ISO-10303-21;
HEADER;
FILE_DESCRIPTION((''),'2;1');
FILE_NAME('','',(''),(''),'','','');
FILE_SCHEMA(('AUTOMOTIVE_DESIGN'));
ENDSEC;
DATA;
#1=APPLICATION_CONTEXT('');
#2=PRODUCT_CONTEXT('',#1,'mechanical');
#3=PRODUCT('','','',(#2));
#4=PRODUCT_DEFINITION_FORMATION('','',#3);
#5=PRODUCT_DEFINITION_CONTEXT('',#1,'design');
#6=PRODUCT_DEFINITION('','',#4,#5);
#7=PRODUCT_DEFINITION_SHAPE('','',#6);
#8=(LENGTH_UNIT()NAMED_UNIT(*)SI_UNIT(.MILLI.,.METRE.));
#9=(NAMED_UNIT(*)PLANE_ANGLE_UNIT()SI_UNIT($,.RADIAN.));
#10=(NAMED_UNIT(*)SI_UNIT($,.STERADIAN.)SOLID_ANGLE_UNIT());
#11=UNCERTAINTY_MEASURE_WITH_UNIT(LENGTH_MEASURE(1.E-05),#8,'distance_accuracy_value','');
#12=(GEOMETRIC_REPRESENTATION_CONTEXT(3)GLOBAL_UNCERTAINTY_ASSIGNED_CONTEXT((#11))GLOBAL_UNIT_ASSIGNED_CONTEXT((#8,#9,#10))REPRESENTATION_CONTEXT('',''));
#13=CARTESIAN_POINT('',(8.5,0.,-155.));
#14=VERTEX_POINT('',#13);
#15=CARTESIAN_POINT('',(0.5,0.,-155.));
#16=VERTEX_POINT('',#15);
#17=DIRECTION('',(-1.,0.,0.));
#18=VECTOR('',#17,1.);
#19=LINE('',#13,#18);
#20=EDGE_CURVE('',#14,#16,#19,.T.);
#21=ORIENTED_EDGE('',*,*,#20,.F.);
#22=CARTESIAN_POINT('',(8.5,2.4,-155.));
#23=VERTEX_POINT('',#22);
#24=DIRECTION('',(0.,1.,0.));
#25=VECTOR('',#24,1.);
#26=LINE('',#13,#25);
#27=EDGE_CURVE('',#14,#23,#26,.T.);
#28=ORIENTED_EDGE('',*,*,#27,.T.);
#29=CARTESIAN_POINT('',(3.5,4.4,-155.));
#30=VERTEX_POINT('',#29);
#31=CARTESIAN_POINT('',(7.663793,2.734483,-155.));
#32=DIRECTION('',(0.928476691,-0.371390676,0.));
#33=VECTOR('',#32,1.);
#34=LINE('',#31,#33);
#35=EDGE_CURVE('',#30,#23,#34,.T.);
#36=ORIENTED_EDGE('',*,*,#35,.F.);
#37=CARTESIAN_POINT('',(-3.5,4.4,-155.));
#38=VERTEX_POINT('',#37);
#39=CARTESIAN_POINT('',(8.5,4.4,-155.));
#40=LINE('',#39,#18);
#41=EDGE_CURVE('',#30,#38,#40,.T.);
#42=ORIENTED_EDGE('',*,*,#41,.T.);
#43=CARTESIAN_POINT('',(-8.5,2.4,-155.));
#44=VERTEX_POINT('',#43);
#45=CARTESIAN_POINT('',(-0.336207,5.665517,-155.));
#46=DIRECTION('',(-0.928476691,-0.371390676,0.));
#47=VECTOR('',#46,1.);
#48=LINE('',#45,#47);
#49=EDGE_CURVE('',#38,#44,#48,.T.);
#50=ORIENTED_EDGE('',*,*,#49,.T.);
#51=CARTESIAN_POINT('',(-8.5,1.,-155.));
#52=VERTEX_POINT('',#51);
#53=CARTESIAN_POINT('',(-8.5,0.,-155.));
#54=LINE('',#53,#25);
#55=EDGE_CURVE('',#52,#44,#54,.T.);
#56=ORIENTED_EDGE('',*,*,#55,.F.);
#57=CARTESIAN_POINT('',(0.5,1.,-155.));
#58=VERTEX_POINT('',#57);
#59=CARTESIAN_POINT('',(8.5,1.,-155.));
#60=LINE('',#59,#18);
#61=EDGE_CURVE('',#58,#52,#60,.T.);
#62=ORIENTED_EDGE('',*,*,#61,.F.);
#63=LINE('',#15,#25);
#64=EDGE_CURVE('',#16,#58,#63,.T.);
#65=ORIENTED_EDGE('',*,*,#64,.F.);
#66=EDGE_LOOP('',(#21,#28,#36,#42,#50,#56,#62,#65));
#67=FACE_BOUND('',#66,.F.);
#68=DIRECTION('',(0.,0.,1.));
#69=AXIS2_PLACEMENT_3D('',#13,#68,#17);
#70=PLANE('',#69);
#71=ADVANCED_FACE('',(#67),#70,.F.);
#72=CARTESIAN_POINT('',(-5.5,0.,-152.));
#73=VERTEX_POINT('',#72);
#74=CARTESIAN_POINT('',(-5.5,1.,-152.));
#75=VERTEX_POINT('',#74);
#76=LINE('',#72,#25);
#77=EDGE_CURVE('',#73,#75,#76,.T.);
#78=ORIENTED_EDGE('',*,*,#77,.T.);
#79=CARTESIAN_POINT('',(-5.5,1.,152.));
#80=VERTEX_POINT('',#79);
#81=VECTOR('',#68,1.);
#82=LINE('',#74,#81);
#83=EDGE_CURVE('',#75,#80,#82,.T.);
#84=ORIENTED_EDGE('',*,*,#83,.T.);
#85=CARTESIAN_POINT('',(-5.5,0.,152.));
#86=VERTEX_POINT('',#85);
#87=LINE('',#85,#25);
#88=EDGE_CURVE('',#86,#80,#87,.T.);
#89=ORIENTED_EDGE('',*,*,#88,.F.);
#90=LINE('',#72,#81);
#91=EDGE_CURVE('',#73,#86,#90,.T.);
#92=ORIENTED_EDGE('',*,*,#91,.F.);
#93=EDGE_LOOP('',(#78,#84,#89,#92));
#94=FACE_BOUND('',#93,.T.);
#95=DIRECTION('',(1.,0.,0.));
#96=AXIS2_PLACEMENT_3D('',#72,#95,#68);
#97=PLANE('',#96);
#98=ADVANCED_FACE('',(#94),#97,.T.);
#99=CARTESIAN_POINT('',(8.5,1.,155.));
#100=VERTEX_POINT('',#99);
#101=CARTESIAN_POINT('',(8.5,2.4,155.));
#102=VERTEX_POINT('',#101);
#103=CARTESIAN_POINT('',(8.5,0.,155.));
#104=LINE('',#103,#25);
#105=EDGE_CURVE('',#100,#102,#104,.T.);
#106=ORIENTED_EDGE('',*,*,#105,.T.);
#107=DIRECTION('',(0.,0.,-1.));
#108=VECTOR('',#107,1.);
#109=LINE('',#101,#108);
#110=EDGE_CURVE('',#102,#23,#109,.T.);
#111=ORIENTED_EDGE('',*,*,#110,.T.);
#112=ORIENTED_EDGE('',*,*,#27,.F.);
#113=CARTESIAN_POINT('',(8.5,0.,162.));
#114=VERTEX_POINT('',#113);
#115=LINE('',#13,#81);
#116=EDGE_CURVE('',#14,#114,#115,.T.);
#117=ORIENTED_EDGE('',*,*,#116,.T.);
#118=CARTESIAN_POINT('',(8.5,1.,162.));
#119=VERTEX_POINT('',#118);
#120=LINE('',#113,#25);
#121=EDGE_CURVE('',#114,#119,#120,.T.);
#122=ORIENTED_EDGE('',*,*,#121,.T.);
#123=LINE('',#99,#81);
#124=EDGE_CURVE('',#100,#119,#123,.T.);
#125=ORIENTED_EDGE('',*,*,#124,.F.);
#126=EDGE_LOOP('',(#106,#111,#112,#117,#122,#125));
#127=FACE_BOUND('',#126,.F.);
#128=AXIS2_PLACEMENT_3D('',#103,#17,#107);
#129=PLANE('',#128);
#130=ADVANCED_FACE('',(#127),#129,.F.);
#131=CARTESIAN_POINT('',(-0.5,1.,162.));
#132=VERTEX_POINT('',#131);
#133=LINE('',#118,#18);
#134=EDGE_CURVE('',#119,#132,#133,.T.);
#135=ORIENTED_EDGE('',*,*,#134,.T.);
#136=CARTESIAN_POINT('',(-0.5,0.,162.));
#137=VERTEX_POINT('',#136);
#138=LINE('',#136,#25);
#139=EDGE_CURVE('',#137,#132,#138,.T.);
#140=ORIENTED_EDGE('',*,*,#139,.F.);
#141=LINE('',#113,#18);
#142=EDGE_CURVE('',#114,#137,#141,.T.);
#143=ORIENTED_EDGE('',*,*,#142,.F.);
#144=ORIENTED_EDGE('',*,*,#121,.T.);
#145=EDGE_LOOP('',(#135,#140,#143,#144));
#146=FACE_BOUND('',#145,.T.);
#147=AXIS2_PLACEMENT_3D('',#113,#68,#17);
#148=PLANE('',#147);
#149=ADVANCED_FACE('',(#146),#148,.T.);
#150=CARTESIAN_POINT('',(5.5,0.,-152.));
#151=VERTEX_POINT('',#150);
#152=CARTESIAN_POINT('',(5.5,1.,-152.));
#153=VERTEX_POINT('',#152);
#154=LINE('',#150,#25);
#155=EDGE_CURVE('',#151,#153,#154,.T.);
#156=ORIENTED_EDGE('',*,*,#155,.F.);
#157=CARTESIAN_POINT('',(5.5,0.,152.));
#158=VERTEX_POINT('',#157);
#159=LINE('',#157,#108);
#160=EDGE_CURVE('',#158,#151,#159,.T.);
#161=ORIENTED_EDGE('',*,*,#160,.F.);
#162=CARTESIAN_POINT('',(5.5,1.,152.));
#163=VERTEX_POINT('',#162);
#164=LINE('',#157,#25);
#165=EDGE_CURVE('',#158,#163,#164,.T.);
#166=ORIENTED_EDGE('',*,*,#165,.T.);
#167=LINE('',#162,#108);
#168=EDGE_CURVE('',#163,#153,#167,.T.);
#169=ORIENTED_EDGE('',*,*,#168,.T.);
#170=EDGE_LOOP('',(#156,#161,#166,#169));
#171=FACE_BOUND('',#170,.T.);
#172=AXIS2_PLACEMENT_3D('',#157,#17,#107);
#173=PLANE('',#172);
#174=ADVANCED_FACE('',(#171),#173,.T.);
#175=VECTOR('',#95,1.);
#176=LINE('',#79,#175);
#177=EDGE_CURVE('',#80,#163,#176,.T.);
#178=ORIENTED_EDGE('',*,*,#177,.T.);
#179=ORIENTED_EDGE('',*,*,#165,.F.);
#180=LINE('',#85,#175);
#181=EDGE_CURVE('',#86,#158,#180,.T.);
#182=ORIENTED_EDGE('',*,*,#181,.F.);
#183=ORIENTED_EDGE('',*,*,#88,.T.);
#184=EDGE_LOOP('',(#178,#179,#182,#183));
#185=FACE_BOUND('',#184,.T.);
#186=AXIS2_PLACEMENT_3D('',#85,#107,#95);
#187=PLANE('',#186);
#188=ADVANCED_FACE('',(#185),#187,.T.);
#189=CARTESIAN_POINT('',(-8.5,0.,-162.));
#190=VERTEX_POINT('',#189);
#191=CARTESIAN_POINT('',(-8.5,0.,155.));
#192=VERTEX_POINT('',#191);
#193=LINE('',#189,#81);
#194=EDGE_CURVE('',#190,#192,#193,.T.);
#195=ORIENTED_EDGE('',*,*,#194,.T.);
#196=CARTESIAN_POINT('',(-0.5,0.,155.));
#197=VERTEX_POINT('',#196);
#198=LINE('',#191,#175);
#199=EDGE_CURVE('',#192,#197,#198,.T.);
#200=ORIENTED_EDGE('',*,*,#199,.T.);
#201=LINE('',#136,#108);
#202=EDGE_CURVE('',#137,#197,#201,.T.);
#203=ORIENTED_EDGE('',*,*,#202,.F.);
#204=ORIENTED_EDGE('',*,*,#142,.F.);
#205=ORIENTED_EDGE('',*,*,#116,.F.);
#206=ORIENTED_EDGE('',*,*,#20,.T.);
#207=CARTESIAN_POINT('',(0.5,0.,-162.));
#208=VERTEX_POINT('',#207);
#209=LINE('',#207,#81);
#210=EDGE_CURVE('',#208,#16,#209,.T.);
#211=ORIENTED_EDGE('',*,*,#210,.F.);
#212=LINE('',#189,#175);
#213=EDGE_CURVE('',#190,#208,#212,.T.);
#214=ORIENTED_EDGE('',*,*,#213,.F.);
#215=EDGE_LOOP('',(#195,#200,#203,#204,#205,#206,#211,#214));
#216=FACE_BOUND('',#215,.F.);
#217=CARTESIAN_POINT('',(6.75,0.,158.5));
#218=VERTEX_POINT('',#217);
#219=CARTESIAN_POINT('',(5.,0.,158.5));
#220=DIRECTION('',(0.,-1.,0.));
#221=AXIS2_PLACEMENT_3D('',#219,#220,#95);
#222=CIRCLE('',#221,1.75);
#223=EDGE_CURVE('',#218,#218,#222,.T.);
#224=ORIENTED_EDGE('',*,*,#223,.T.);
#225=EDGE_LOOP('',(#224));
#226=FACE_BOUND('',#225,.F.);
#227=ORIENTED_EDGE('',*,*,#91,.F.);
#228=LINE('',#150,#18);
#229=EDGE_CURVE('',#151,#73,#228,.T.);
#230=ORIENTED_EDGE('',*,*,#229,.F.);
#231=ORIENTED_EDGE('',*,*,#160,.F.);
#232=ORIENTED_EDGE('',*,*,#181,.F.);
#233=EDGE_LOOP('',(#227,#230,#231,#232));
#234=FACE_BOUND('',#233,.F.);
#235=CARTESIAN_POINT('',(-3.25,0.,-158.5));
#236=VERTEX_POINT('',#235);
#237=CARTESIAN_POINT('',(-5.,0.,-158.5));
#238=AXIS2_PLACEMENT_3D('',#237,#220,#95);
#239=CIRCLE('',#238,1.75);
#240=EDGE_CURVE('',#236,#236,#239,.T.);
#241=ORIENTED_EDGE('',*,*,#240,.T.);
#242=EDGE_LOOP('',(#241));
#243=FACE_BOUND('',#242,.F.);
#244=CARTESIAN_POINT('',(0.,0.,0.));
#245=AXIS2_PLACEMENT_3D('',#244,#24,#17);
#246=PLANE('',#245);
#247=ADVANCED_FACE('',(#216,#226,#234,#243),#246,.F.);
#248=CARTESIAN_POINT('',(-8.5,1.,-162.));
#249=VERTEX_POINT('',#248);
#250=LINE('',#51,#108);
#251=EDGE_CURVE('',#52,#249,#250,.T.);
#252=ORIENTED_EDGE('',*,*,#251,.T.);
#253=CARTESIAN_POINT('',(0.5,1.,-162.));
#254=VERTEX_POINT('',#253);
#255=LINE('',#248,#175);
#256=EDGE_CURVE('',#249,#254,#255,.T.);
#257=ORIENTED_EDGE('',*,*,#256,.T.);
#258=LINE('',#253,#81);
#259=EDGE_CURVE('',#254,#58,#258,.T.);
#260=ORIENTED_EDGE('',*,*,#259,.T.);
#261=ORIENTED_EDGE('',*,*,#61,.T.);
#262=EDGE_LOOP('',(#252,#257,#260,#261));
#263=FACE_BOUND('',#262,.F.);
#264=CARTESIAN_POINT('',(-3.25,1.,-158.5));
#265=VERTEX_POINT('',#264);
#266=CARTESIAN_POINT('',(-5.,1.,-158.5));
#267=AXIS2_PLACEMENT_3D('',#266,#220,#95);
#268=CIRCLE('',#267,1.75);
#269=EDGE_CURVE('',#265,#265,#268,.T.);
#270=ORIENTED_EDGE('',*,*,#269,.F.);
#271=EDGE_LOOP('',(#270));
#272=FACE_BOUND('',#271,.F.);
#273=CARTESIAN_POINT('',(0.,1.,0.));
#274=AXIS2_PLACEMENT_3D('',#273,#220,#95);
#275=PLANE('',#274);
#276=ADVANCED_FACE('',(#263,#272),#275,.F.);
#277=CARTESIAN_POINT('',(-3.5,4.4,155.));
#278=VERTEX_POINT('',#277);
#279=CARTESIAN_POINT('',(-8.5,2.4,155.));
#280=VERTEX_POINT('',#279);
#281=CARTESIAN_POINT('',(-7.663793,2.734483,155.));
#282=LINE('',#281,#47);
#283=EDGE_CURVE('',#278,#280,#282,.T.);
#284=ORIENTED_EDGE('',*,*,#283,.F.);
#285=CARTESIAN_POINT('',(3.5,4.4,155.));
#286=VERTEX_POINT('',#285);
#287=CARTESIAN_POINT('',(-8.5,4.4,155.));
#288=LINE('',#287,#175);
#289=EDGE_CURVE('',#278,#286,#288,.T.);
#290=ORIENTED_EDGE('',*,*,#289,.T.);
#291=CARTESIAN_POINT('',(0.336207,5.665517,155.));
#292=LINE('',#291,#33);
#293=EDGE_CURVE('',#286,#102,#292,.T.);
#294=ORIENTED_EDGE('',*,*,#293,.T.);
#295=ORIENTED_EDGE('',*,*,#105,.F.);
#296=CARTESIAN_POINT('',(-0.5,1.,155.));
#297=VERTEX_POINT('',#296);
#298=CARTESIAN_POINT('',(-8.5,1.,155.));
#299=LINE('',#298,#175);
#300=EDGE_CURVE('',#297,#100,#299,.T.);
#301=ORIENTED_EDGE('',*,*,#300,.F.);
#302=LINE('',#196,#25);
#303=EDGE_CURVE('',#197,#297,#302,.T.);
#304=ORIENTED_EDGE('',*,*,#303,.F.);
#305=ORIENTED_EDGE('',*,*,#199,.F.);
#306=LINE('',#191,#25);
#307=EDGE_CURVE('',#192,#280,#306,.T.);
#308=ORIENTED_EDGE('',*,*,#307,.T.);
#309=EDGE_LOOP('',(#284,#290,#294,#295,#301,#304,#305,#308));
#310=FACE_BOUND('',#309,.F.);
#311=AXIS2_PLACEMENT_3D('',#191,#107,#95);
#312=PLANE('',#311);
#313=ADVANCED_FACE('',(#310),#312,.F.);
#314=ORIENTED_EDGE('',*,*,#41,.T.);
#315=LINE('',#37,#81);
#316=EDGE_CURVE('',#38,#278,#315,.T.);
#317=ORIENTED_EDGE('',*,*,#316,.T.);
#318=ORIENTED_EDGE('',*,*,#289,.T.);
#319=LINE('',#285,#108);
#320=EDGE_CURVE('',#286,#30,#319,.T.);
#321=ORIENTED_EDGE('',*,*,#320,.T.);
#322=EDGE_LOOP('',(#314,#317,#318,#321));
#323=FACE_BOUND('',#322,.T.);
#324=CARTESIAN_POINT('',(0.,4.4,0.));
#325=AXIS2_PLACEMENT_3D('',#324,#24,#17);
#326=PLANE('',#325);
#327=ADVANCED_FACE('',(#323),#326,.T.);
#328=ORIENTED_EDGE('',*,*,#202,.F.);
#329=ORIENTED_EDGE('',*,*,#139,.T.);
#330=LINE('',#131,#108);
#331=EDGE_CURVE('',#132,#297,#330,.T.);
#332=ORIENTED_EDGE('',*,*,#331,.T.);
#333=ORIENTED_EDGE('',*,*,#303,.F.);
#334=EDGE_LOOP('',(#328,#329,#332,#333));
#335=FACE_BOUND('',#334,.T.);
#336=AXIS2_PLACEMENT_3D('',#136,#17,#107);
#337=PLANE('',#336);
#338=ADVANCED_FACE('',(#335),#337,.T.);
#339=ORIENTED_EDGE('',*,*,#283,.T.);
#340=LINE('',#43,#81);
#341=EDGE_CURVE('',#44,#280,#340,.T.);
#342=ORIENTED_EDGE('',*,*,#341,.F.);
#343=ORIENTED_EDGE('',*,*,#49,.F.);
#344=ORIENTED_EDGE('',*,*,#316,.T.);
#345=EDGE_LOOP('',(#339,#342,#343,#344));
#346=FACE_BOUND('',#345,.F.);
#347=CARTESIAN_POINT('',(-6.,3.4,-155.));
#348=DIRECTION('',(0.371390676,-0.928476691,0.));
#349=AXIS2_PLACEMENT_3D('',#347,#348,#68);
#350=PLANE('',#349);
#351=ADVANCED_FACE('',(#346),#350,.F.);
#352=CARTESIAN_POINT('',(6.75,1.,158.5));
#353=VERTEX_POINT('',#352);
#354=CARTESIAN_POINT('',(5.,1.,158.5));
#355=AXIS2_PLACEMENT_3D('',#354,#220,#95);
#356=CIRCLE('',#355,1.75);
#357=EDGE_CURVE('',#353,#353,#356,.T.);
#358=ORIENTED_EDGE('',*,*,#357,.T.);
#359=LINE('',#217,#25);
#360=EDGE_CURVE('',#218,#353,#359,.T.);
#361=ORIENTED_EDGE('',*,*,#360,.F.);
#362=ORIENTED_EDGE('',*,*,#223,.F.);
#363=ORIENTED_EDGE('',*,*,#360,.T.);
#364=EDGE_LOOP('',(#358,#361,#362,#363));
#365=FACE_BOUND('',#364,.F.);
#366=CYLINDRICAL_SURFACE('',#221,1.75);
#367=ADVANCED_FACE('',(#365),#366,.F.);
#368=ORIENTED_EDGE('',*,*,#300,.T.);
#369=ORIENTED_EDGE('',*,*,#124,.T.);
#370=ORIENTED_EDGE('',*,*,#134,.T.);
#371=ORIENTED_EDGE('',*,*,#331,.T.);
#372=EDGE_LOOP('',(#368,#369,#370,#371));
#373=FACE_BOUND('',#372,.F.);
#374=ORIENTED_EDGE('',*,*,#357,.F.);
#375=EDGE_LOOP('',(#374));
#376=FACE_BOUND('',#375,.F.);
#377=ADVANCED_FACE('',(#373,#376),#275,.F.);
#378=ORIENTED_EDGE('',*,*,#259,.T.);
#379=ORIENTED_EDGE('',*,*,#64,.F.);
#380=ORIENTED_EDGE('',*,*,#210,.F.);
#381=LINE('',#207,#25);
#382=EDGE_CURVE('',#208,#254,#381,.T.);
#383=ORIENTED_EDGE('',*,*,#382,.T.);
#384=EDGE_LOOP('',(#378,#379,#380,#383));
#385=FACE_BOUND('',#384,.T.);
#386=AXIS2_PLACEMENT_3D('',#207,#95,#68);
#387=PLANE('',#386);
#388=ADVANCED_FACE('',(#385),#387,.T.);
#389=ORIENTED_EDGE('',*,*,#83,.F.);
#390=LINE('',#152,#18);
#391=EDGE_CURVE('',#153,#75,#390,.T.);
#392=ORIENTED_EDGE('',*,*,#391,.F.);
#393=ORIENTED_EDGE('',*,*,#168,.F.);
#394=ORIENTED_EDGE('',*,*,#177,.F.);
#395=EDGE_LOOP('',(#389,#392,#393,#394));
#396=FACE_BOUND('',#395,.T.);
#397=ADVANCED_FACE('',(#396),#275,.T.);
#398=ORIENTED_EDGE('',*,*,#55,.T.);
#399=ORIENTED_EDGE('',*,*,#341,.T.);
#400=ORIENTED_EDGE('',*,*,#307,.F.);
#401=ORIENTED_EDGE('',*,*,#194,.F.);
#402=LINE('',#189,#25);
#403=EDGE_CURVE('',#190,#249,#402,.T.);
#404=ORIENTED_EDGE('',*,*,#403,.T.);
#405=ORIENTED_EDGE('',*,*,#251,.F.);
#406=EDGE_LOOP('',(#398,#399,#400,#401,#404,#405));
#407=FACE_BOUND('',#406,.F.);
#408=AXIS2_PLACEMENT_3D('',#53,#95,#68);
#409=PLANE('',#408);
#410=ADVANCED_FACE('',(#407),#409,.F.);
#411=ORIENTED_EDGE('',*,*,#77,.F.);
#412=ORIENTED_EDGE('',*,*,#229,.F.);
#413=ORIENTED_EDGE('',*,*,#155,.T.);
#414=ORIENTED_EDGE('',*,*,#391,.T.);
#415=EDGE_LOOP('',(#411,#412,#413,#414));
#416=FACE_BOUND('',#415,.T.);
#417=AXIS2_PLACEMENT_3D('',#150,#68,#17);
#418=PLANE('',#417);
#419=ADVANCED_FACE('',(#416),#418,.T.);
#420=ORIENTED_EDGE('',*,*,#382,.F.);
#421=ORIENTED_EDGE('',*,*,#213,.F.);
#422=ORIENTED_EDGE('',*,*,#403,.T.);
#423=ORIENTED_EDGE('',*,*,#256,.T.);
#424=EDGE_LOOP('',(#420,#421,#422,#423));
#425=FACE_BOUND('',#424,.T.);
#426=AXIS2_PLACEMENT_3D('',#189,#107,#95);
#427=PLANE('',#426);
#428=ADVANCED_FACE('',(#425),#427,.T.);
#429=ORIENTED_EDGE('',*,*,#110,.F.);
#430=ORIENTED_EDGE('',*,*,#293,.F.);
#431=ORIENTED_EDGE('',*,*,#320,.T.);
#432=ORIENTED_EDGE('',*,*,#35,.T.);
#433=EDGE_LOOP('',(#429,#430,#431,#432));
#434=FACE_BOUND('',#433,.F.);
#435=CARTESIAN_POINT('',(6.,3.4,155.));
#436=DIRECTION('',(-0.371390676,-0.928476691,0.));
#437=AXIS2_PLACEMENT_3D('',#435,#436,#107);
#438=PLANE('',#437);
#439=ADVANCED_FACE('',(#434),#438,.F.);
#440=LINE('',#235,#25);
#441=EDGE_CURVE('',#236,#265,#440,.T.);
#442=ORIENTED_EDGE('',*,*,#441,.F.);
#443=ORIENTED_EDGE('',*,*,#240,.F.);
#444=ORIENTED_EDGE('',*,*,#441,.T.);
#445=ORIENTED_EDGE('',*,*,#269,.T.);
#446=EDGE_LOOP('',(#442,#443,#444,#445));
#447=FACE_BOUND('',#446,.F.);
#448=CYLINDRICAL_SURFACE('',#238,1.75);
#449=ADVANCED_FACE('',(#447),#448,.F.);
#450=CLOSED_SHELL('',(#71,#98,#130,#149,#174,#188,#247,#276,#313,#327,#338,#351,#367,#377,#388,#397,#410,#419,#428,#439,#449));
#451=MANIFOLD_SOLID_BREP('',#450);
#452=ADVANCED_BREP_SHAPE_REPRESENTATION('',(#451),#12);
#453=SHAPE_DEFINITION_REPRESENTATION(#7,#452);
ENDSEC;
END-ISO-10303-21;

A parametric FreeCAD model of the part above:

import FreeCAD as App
import Part
import Sketcher
from FreeCAD import Vector


def edges_at(feature, points):
    """Names of the edges that pass closest to the given points."""
    edges = feature.Shape.Edges
    near = lambda p: min(range(len(edges)), key=lambda i: edges[i].distToShape(Part.Vertex(*p))[0])
    return sorted({f"Edge{near(p) + 1}" for p in points})


def add_polygon(sketch, points):
    """Adds a closed chain of lines whose ends are joined by coincident constraints."""
    first, n = sketch.GeometryCount, len(points)
    for a, b in zip(points, points[1:] + points[:1]):
        sketch.addGeometry(Part.LineSegment(App.Vector(*a, 0), App.Vector(*b, 0)), False)
    for i in range(n):
        sketch.addConstraint(Sketcher.Constraint("Coincident", first + i, 2, first + (i + 1) % n, 1))

doc = App.newDocument("Part")
params = doc.addObject("Spreadsheet::Sheet", "Params")
for row, (alias, value) in enumerate([
    ("sketch1_width", "17 mm"),
    ("sketch1_height", "310 mm"),
    ("pad1_length", "4.4 mm"),
    ("chamfer_size", "5 mm"),
    ("chamfer_size2", "2 mm"),
    ("chamfer2_size", "5 mm"),
    ("chamfer2_size2", "2 mm"),
    ("sketch2_diameter", "3.5 mm"),
    ("sketch2_width", "9 mm"),
    ("sketch2_height", "7 mm"),
    ("pad2_length", "1 mm"),
    ("sketch3_width", "11 mm"),
    ("sketch3_height", "304 mm"),
    ("pocket1_length", "1 mm"),
], start=1):
    params.set(f"A{row}", alias)
    params.set(f"B{row}", "=" + value)
    params.setAlias(f"B{row}", alias)

body = doc.addObject("PartDesign::Body", "Body")

sketch1 = doc.addObject("Sketcher::SketchObject", "Sketch")
body.addObject(sketch1)
sketch1.AttachmentSupport = (doc.XZ_Plane, [""])
sketch1.MapMode = "FlatFace"
add_polygon(sketch1, [(8.5, 155), (8.5, -155), (-8.5, -155), (-8.5, 155)])
sketch1.addConstraint([
    Sketcher.Constraint("Vertical", 0),
    Sketcher.Constraint("Horizontal", 1),
    Sketcher.Constraint("Vertical", 2),
    Sketcher.Constraint("Horizontal", 3),
    Sketcher.Constraint("Symmetric", 0, 2, 2, 2, -1, 1),
    Sketcher.Constraint("DistanceX", 1, 2, 1, 1, 17.0),
    Sketcher.Constraint("DistanceY", 0, 2, 0, 1, 310.0),
])
sketch1.setExpression("Constraints[9]", "Params.sketch1_width")
sketch1.setExpression("Constraints[10]", "Params.sketch1_height")
pad1 = doc.addObject("PartDesign::Pad", "Pad")
body.addObject(pad1)
pad1.Profile = sketch1
pad1.setExpression("Length", "Params.pad1_length")
pad1.Reversed = True
doc.recompute()

chamfer = doc.addObject("PartDesign::Chamfer", "Chamfer")
body.addObject(chamfer)
chamfer.Base = (pad1, edges_at(pad1, [(8.5, 4.4, 0)]))
chamfer.ChamferType = "Two distances"
chamfer.setExpression("Size", "Params.chamfer_size")
chamfer.setExpression("Size2", "Params.chamfer_size2")
chamfer.FlipDirection = True
doc.recompute()

chamfer2 = doc.addObject("PartDesign::Chamfer", "Chamfer001")
body.addObject(chamfer2)
chamfer2.Base = (chamfer, edges_at(chamfer, [(-8.5, 4.4, 0)]))
chamfer2.ChamferType = "Two distances"
chamfer2.setExpression("Size", "Params.chamfer2_size")
chamfer2.setExpression("Size2", "Params.chamfer2_size2")

sketch2 = doc.addObject("Sketcher::SketchObject", "Sketch001")
body.addObject(sketch2)
sketch2.AttachmentSupport = (doc.XZ_Plane, [""])
sketch2.MapMode = "FlatFace"
add_polygon(sketch2, [(0.5, -155), (-8.5, -155), (-8.5, -162), (0.5, -162)])
sketch2.addGeometry(Part.Circle(Vector(-5, -158.5, 0), Vector(0, 0, 1), 1.75), False)
add_polygon(sketch2, [(-0.5, 162), (-0.5, 155), (8.5, 155), (8.5, 162)])
sketch2.addGeometry(Part.Circle(Vector(5, 158.5, 0), Vector(0, 0, 1), 1.75), False)
sketch2.addConstraint([
    Sketcher.Constraint("Horizontal", 0),
    Sketcher.Constraint("Vertical", 1),
    Sketcher.Constraint("Horizontal", 2),
    Sketcher.Constraint("Vertical", 3),
    Sketcher.Constraint("Vertical", 5),
    Sketcher.Constraint("Horizontal", 6),
    Sketcher.Constraint("Vertical", 7),
    Sketcher.Constraint("Horizontal", 8),
    Sketcher.Constraint("Equal", 4, 9),
    Sketcher.Constraint("Symmetric", 4, 3, 9, 3, -1, 1),
    Sketcher.Constraint("Symmetric", 3, 2, 5, 2, -1, 1),
    Sketcher.Constraint("Symmetric", 1, 2, 7, 2, -1, 1),
    Sketcher.Constraint("Diameter", 4, 3.5),
    Sketcher.Constraint("DistanceX", 0, 2, 0, 1, 9.0),
    Sketcher.Constraint("DistanceY", 1, 2, 1, 1, 7.0),
    Sketcher.Constraint("DistanceX", 0, 2, 4, 3, 3.5),
    Sketcher.Constraint("DistanceY", 4, 3, 0, 2, 3.5),
    Sketcher.Constraint("DistanceX", 4, 3, -1, 1, 5.0),
    Sketcher.Constraint("DistanceY", 0, 2, -1, 1, 155.0),
])
sketch2.setExpression("Constraints[20]", "Params.sketch2_diameter")
sketch2.setExpression("Constraints[21]", "Params.sketch2_width")
sketch2.setExpression("Constraints[22]", "Params.sketch2_height")
pad2 = doc.addObject("PartDesign::Pad", "Pad001")
body.addObject(pad2)
pad2.Profile = sketch2
pad2.setExpression("Length", "Params.pad2_length")
pad2.Reversed = True

sketch3 = doc.addObject("Sketcher::SketchObject", "Sketch002")
body.addObject(sketch3)
sketch3.AttachmentSupport = (doc.XZ_Plane, [""])
sketch3.MapMode = "FlatFace"
add_polygon(sketch3, [(-5.5, -152), (5.5, -152), (5.5, 152), (-5.5, 152)])
sketch3.addConstraint([
    Sketcher.Constraint("Horizontal", 0),
    Sketcher.Constraint("Vertical", 1),
    Sketcher.Constraint("Horizontal", 2),
    Sketcher.Constraint("Vertical", 3),
    Sketcher.Constraint("Symmetric", 0, 2, 2, 2, -1, 1),
    Sketcher.Constraint("DistanceX", 0, 1, 0, 2, 11.0),
    Sketcher.Constraint("DistanceY", 1, 1, 1, 2, 304.0),
])
sketch3.setExpression("Constraints[9]", "Params.sketch3_width")
sketch3.setExpression("Constraints[10]", "Params.sketch3_height")
pocket1 = doc.addObject("PartDesign::Pocket", "Pocket")
body.addObject(pocket1)
pocket1.Profile = sketch3
pocket1.setExpression("Length", "Params.pocket1_length")

doc.recompute()
